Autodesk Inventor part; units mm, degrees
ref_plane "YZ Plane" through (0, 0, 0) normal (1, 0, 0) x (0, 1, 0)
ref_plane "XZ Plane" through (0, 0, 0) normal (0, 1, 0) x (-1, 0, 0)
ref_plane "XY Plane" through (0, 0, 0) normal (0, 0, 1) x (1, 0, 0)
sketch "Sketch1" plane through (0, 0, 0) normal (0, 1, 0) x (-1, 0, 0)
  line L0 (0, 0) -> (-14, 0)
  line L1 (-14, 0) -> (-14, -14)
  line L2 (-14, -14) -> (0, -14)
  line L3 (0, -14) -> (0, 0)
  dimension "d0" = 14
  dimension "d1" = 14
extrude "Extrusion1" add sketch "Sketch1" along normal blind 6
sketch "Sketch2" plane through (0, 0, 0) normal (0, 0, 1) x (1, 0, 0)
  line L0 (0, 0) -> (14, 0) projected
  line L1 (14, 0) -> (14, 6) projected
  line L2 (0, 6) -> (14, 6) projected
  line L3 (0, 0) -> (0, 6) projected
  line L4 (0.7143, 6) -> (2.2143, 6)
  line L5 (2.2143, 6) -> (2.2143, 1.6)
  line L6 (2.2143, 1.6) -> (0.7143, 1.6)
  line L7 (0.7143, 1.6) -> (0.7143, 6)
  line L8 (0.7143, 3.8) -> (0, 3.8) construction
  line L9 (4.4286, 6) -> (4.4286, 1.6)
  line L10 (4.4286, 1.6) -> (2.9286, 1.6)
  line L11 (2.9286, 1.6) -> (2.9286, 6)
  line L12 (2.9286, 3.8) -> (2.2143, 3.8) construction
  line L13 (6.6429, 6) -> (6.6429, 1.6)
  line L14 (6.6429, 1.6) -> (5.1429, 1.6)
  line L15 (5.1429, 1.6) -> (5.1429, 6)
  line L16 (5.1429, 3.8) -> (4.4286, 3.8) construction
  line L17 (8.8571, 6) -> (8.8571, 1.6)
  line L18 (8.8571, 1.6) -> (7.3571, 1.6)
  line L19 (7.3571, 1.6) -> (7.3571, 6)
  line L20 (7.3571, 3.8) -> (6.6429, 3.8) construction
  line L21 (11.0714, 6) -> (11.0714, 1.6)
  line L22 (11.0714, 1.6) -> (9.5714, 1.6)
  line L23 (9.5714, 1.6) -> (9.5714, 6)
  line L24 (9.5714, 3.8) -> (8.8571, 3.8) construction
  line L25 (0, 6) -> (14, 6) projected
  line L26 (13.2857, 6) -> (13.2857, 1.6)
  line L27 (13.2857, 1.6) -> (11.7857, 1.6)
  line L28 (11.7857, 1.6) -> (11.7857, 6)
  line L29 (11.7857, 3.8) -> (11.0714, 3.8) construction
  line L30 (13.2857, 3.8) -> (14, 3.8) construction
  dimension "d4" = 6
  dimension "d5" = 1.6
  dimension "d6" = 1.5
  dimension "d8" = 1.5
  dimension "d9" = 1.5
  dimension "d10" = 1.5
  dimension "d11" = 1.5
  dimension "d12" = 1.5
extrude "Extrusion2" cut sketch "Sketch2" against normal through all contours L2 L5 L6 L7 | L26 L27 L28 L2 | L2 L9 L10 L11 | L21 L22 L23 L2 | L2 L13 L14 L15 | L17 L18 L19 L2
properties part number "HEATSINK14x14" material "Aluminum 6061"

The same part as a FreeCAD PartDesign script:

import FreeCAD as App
import Part
import Sketcher

V = App.Vector
Q = App.Units.Quantity

doc = App.newDocument("Part")
body = doc.addObject("PartDesign::Body", "Body")

# Sketch on XZ plane
sketch1 = body.newObject("Sketcher::SketchObject", "Sketch")
sketch1.AttachmentSupport = (doc.getObject("XZ_Plane"), [""])
sketch1.MapMode = "FlatFace"
sketch1.addGeometry(Part.LineSegment(V(0, -14, 0), V(0, 0, 0)), False)
sketch1.addGeometry(Part.LineSegment(V(0, 0, 0), V(14, 0, 0)), False)
sketch1.addGeometry(Part.LineSegment(V(14, 0, 0), V(14, -14, 0)), False)
sketch1.addGeometry(Part.LineSegment(V(14, -14, 0), V(0, -14, 0)), False)
sketch1.addConstraint(Sketcher.Constraint("Coincident", 0, 2, 1, 1))
sketch1.addConstraint(Sketcher.Constraint("Coincident", 1, 2, 2, 1))
sketch1.addConstraint(Sketcher.Constraint("Coincident", 2, 2, 3, 1))
sketch1.addConstraint(Sketcher.Constraint("Coincident", 3, 2, 0, 1))
sketch1.addConstraint(Sketcher.Constraint("Vertical", 0))
sketch1.addConstraint(Sketcher.Constraint("Horizontal", 1))
sketch1.addConstraint(Sketcher.Constraint("Vertical", 2))
sketch1.addConstraint(Sketcher.Constraint("Horizontal", 3))
sketch1.addConstraint(Sketcher.Constraint("Coincident", 0, 2, -1, 1))
sketch1.addConstraint(Sketcher.Constraint("Equal", 3, 0))
sketch1.addConstraint(Sketcher.Constraint("DistanceX", 1, 1, 1, 2, Q("14 mm")))
pad1 = body.newObject("PartDesign::Pad", "Pad")
pad1.Profile = sketch1
pad1.Length = 6
pad1.Reversed = True

# Sketch on XY plane
sketch2 = body.newObject("Sketcher::SketchObject", "Sketch001")
sketch2.AttachmentSupport = (doc.getObject("XY_Plane"), [""])
sketch2.MapMode = "FlatFace"
sketch2.addGeometry(Part.LineSegment(V(2.2, 6, 0), V(0.7, 6, 0)), False)
sketch2.addGeometry(Part.LineSegment(V(0.7, 6, 0), V(0.7, 1.6, 0)), False)
sketch2.addGeometry(Part.LineSegment(V(0.7, 1.6, 0), V(2.2, 1.6, 0)), False)
sketch2.addGeometry(Part.LineSegment(V(2.2, 1.6, 0), V(2.2, 6, 0)), False)
sketch2.addGeometry(Part.LineSegment(V(13.3, 1.6, 0), V(13.3, 6, 0)), False)
sketch2.addGeometry(Part.LineSegment(V(13.3, 6, 0), V(11.8, 6, 0)), False)
sketch2.addGeometry(Part.LineSegment(V(11.8, 6, 0), V(11.8, 1.6, 0)), False)
sketch2.addGeometry(Part.LineSegment(V(11.8, 1.6, 0), V(13.3, 1.6, 0)), False)
sketch2.addGeometry(Part.LineSegment(V(4.4, 6, 0), V(2.9, 6, 0)), False)
sketch2.addGeometry(Part.LineSegment(V(2.9, 6, 0), V(2.9, 1.6, 0)), False)
sketch2.addGeometry(Part.LineSegment(V(2.9, 1.6, 0), V(4.4, 1.6, 0)), False)
sketch2.addGeometry(Part.LineSegment(V(4.4, 1.6, 0), V(4.4, 6, 0)), False)
sketch2.addGeometry(Part.LineSegment(V(11.1, 1.6, 0), V(11.1, 6, 0)), False)
sketch2.addGeometry(Part.LineSegment(V(11.1, 6, 0), V(9.6, 6, 0)), False)
sketch2.addGeometry(Part.LineSegment(V(9.6, 6, 0), V(9.6, 1.6, 0)), False)
sketch2.addGeometry(Part.LineSegment(V(9.6, 1.6, 0), V(11.1, 1.6, 0)), False)
sketch2.addGeometry(Part.LineSegment(V(6.6, 6, 0), V(5.1, 6, 0)), False)
sketch2.addGeometry(Part.LineSegment(V(5.1, 6, 0), V(5.1, 1.6, 0)), False)
sketch2.addGeometry(Part.LineSegment(V(5.1, 1.6, 0), V(6.6, 1.6, 0)), False)
sketch2.addGeometry(Part.LineSegment(V(6.6, 1.6, 0), V(6.6, 6, 0)), False)
sketch2.addGeometry(Part.LineSegment(V(8.9, 1.6, 0), V(8.9, 6, 0)), False)
sketch2.addGeometry(Part.LineSegment(V(8.9, 6, 0), V(7.4, 6, 0)), False)
sketch2.addGeometry(Part.LineSegment(V(7.4, 6, 0), V(7.4, 1.6, 0)), False)
sketch2.addGeometry(Part.LineSegment(V(7.4, 1.6, 0), V(8.9, 1.6, 0)), False)
sketch2.addConstraint(Sketcher.Constraint("Coincident", 0, 2, 1, 1))
sketch2.addConstraint(Sketcher.Constraint("Coincident", 1, 2, 2, 1))
sketch2.addConstraint(Sketcher.Constraint("Coincident", 2, 2, 3, 1))
sketch2.addConstraint(Sketcher.Constraint("Coincident", 3, 2, 0, 1))
sketch2.addConstraint(Sketcher.Constraint("Coincident", 4, 2, 5, 1))
sketch2.addConstraint(Sketcher.Constraint("Coincident", 5, 2, 6, 1))
sketch2.addConstraint(Sketcher.Constraint("Coincident", 6, 2, 7, 1))
sketch2.addConstraint(Sketcher.Constraint("Coincident", 7, 2, 4, 1))
sketch2.addConstraint(Sketcher.Constraint("Coincident", 8, 2, 9, 1))
sketch2.addConstraint(Sketcher.Constraint("Coincident", 9, 2, 10, 1))
sketch2.addConstraint(Sketcher.Constraint("Coincident", 10, 2, 11, 1))
sketch2.addConstraint(Sketcher.Constraint("Coincident", 11, 2, 8, 1))
sketch2.addConstraint(Sketcher.Constraint("Coincident", 12, 2, 13, 1))
sketch2.addConstraint(Sketcher.Constraint("Coincident", 13, 2, 14, 1))
sketch2.addConstraint(Sketcher.Constraint("Coincident", 14, 2, 15, 1))
sketch2.addConstraint(Sketcher.Constraint("Coincident", 15, 2, 12, 1))
sketch2.addConstraint(Sketcher.Constraint("Coincident", 16, 2, 17, 1))
sketch2.addConstraint(Sketcher.Constraint("Coincident", 17, 2, 18, 1))
sketch2.addConstraint(Sketcher.Constraint("Coincident", 18, 2, 19, 1))
sketch2.addConstraint(Sketcher.Constraint("Coincident", 19, 2, 16, 1))
sketch2.addConstraint(Sketcher.Constraint("Coincident", 20, 2, 21, 1))
sketch2.addConstraint(Sketcher.Constraint("Coincident", 21, 2, 22, 1))
sketch2.addConstraint(Sketcher.Constraint("Coincident", 22, 2, 23, 1))
sketch2.addConstraint(Sketcher.Constraint("Coincident", 23, 2, 20, 1))
sketch2.addConstraint(Sketcher.Constraint("Horizontal", 0))
sketch2.addConstraint(Sketcher.Constraint("Vertical", 1))
sketch2.addConstraint(Sketcher.Constraint("Horizontal", 2))
sketch2.addConstraint(Sketcher.Constraint("Vertical", 3))
sketch2.addConstraint(Sketcher.Constraint("Vertical", 4))
sketch2.addConstraint(Sketcher.Constraint("Horizontal", 5))
sketch2.addConstraint(Sketcher.Constraint("Vertical", 6))
sketch2.addConstraint(Sketcher.Constraint("Horizontal", 7))
sketch2.addConstraint(Sketcher.Constraint("Horizontal", 8))
sketch2.addConstraint(Sketcher.Constraint("Vertical", 9))
sketch2.addConstraint(Sketcher.Constraint("Horizontal", 10))
sketch2.addConstraint(Sketcher.Constraint("Vertical", 11))
sketch2.addConstraint(Sketcher.Constraint("Vertical", 12))
sketch2.addConstraint(Sketcher.Constraint("Horizontal", 13))
sketch2.addConstraint(Sketcher.Constraint("Vertical", 14))
sketch2.addConstraint(Sketcher.Constraint("Horizontal", 15))
sketch2.addConstraint(Sketcher.Constraint("Horizontal", 16))
sketch2.addConstraint(Sketcher.Constraint("Vertical", 17))
sketch2.addConstraint(Sketcher.Constraint("Horizontal", 18))
sketch2.addConstraint(Sketcher.Constraint("Vertical", 19))
sketch2.addConstraint(Sketcher.Constraint("Vertical", 20))
sketch2.addConstraint(Sketcher.Constraint("Horizontal", 21))
sketch2.addConstraint(Sketcher.Constraint("Vertical", 22))
sketch2.addConstraint(Sketcher.Constraint("Horizontal", 23))
sketch2.addConstraint(Sketcher.Constraint("Horizontal", 3, 2, 4, 2))
sketch2.addConstraint(Sketcher.Constraint("Horizontal", 2, 2, 6, 2))
sketch2.addConstraint(Sketcher.Constraint("Horizontal", 5, 2, 8, 2))
sketch2.addConstraint(Sketcher.Constraint("Horizontal", 7, 2, 9, 2))
sketch2.addConstraint(Sketcher.Constraint("Horizontal", 11, 2, 12, 2))
sketch2.addConstraint(Sketcher.Constraint("Horizontal", 10, 2, 14, 2))
sketch2.addConstraint(Sketcher.Constraint("Horizontal", 13, 2, 16, 2))
sketch2.addConstraint(Sketcher.Constraint("Horizontal", 15, 2, 17, 2))
sketch2.addConstraint(Sketcher.Constraint("Horizontal", 19, 2, 20, 2))
sketch2.addConstraint(Sketcher.Constraint("Horizontal", 18, 2, 22, 2))
sketch2.addConstraint(Sketcher.Constraint("Equal", 2, 5))
sketch2.addConstraint(Sketcher.Constraint("Equal", 7, 8))
sketch2.addConstraint(Sketcher.Constraint("Equal", 10, 13))
sketch2.addConstraint(Sketcher.Constraint("Equal", 15, 16))
sketch2.addConstraint(Sketcher.Constraint("Equal", 18, 21))
sketch2.addConstraint(Sketcher.Constraint("DistanceX", 0, 2, 0, 1, Q("1.5 mm")))
sketch2.addConstraint(Sketcher.Constraint("DistanceY", -1, 1, 0, 2, Q("6 mm")))
sketch2.addConstraint(Sketcher.Constraint("DistanceY", -1, 1, 1, 2, Q("1.6 mm")))
sketch2.addConstraint(Sketcher.Constraint("DistanceX", -1, 1, 16, 2, Q("5.143 mm")))
sketch2.addConstraint(Sketcher.Constraint("DistanceX", -1, 1, 20, 2, Q("8.857 mm")))
sketch2.addConstraint(Sketcher.Constraint("DistanceX", 8, 2, 5, 2, Q("8.857 mm")))
sketch2.addConstraint(Sketcher.Constraint("DistanceX", -1, 1, 0, 2, Q("0.7143 mm")))
sketch2.addConstraint(Sketcher.Constraint("DistanceX", -1, 1, 4, 2, Q("13.2857 mm")))
sketch2.addConstraint(Sketcher.Constraint("DistanceX", -1, 1, 12, 2, Q("11.0714 mm")))
pocket1 = body.newObject("PartDesign::Pocket", "Pocket")
pocket1.Profile = sketch2
pocket1.Type = "ThroughAll"

doc.recompute()
